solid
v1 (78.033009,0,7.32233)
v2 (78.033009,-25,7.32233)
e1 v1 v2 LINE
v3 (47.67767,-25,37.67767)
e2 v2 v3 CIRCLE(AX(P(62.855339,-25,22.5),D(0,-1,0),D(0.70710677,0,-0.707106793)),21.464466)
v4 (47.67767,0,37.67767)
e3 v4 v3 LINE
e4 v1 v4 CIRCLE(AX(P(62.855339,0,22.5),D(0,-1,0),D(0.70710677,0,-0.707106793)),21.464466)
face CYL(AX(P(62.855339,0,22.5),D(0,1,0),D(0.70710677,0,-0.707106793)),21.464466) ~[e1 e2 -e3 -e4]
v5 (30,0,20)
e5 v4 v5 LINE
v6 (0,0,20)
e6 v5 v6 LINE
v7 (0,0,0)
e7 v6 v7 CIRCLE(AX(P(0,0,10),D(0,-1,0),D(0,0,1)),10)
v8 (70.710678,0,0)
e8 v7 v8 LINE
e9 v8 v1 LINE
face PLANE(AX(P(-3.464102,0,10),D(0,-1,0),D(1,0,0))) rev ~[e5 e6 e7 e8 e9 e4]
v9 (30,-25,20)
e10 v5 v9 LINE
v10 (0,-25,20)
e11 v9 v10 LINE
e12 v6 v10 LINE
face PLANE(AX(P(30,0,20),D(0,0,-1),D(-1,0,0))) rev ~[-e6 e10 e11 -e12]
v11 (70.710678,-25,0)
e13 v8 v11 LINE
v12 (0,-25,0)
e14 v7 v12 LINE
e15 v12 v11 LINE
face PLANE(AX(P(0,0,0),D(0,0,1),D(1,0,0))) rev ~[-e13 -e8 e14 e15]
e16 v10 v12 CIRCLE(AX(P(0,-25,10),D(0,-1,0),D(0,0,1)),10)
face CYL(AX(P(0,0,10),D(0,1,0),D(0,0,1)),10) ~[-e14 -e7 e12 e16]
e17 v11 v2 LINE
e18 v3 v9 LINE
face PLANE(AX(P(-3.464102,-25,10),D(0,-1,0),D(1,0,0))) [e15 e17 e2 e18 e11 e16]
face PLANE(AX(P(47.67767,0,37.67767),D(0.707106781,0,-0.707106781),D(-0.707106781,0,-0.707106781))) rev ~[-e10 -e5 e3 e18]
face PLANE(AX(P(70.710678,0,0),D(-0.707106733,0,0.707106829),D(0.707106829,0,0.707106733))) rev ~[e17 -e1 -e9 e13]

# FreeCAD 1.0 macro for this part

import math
import FreeCAD as App
import Part
import Sketcher

V = App.Vector
Q = App.Units.Quantity

doc = App.newDocument("Part")
body = doc.addObject("PartDesign::Body", "Body")

# Sketch on XZ plane
sketch1 = body.newObject("Sketcher::SketchObject", "Sketch")
sketch1.AttachmentSupport = (doc.getObject("XZ_Plane"), [""])
sketch1.MapMode = "FlatFace"
sketch1.addGeometry([
    Part.ArcOfCircle(Part.Circle(V(0, 10, 0), V(0, 0, 1), 10), math.radians(90), math.radians(270)),  # 0
    Part.LineSegment(V(0, 0, 0), V(71, 0, 0)),  # 1
    Part.LineSegment(V(71, 0, 0), V(78, 7, 0)),  # 2
    Part.ArcOfCircle(Part.Circle(V(63, 22, 0), V(0, 0, 1), 21), math.radians(-45), math.radians(135)),  # 3
    Part.LineSegment(V(48, 38, 0), V(30, 20, 0)),  # 4
    Part.LineSegment(V(30, 20, 0), V(0, 20, 0)),  # 5
], False)
sketch1.addConstraint([
    Sketcher.Constraint("Tangent", 0, 2, 1, 1),
    Sketcher.Constraint("Coincident", 1, 2, 2, 1),
    Sketcher.Constraint("Tangent", 2, 2, 3, 1),
    Sketcher.Constraint("Tangent", 3, 2, 4, 1),
    Sketcher.Constraint("Coincident", 4, 2, 5, 1),
    Sketcher.Constraint("Tangent", 5, 2, 0, 1),
    Sketcher.Constraint("Horizontal", 1),
    Sketcher.Constraint("Horizontal", 5),
    Sketcher.Constraint("Coincident", 0, 2, -1, 1),
    Sketcher.Constraint("Parallel", 2, 4),
    Sketcher.Constraint("Radius", 0, 10.0),
    Sketcher.Constraint("DistanceX", 5, 2, 5, 1, 30.0),
    Sketcher.Constraint("Angle", 2, Q("44.999996 deg")),
    Sketcher.Constraint("Distance", 4, 25.000001),
    Sketcher.Constraint("DistanceY", -1, 1, 3, 3, 22.5),
])
pad1 = body.newObject("PartDesign::Pad", "Pad")
pad1.Profile = sketch1
pad1.Length = 25

doc.recompute()
